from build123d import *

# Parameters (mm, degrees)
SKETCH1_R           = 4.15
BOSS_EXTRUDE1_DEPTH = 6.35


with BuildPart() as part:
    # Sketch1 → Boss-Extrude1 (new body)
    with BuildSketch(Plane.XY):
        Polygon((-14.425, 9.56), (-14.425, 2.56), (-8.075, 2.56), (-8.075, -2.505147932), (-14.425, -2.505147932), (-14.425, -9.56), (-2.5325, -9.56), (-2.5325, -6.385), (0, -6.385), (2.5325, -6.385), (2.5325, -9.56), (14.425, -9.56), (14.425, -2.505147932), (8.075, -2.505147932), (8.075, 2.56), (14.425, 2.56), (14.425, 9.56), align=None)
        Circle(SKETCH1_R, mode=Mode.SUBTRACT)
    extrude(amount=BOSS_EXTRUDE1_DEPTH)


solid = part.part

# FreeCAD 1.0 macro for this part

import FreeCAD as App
import Part
import Sketcher
Q = App.Units.Quantity


def add_polygon(sketch, points):
    """Adds a closed chain of lines whose ends are joined by coincident constraints."""
    first, n = sketch.GeometryCount, len(points)
    for a, b in zip(points, points[1:] + points[:1]):
        sketch.addGeometry(Part.LineSegment(App.Vector(*a, 0), App.Vector(*b, 0)), False)
    for i in range(n):
        sketch.addConstraint(Sketcher.Constraint("Coincident", first + i, 2, first + (i + 1) % n, 1))

doc = App.newDocument("Part")
body = doc.addObject("PartDesign::Body", "Body")

sketch1 = body.newObject("Sketcher::SketchObject", "Sketch")
sketch1.AttachmentSupport = (doc.getObject("XY_Plane"), [""])
sketch1.MapMode = "FlatFace"
add_polygon(sketch1, [(-14.4, 9.6), (-14.4, 2.6), (-8.1, 2.6), (-8.1, -2.5), (-14.4, -2.5), (-14.4, -9.6), (-2.5, -9.6), (-2.5, -6.4), (2.5, -6.4), (2.5, -9.6), (14.4, -9.6), (14.4, -2.5), (8.1, -2.5), (8.1, 2.6), (14.4, 2.6), (14.4, 9.6)])
sketch1.addGeometry(Part.Circle(App.Vector(0, 0, 0), App.Vector(0, 0, 1), 4.2), False)
sketch1.addConstraint([
    Sketcher.Constraint("Vertical", 0),
    Sketcher.Constraint("Horizontal", 1),
    Sketcher.Constraint("Vertical", 2),
    Sketcher.Constraint("Horizontal", 3),
    Sketcher.Constraint("Vertical", 4),
    Sketcher.Constraint("Horizontal", 5),
    Sketcher.Constraint("Vertical", 6),
    Sketcher.Constraint("Horizontal", 7),
    Sketcher.Constraint("Vertical", 8),
    Sketcher.Constraint("Horizontal", 9),
    Sketcher.Constraint("Vertical", 10),
    Sketcher.Constraint("Horizontal", 11),
    Sketcher.Constraint("Vertical", 12),
    Sketcher.Constraint("Horizontal", 13),
    Sketcher.Constraint("Vertical", 14),
    Sketcher.Constraint("Horizontal", 15),
    Sketcher.Constraint("Coincident", 16, 3, -1, 1),
    Sketcher.Constraint("Symmetric", 4, 2, 14, 2, -1, 1),
    Sketcher.Constraint("Symmetric", 9, 2, 15, 2, -1, 1),
    Sketcher.Constraint("Symmetric", 3, 2, 10, 2, -2),
    Sketcher.Constraint("Symmetric", 1, 2, 12, 2, -2),
    Sketcher.Constraint("Equal", 5, 9),
    Sketcher.Constraint("Diameter", 16, Q("8.3 mm")),
    Sketcher.Constraint("DistanceY", 0, 2, 0, 1, Q("7 mm")),
    Sketcher.Constraint("DistanceX", 1, 1, 1, 2, Q("6.35 mm")),
    Sketcher.Constraint("DistanceX", 15, 2, 15, 1, Q("28.85 mm")),
    Sketcher.Constraint("DistanceX", 7, 1, 7, 2, Q("5.065 mm")),
    Sketcher.Constraint("DistanceY", 6, 1, 6, 2, Q("3.175 mm")),
    Sketcher.Constraint("DistanceY", -1, 1, 0, 2, Q("2.56 mm")),
    Sketcher.Constraint("DistanceY", 2, 2, 2, 1, Q("5.065148 mm")),
])
pad1 = body.newObject("PartDesign::Pad", "Pad")
pad1.Profile = sketch1
pad1.Length = 6.35

doc.recompute()
